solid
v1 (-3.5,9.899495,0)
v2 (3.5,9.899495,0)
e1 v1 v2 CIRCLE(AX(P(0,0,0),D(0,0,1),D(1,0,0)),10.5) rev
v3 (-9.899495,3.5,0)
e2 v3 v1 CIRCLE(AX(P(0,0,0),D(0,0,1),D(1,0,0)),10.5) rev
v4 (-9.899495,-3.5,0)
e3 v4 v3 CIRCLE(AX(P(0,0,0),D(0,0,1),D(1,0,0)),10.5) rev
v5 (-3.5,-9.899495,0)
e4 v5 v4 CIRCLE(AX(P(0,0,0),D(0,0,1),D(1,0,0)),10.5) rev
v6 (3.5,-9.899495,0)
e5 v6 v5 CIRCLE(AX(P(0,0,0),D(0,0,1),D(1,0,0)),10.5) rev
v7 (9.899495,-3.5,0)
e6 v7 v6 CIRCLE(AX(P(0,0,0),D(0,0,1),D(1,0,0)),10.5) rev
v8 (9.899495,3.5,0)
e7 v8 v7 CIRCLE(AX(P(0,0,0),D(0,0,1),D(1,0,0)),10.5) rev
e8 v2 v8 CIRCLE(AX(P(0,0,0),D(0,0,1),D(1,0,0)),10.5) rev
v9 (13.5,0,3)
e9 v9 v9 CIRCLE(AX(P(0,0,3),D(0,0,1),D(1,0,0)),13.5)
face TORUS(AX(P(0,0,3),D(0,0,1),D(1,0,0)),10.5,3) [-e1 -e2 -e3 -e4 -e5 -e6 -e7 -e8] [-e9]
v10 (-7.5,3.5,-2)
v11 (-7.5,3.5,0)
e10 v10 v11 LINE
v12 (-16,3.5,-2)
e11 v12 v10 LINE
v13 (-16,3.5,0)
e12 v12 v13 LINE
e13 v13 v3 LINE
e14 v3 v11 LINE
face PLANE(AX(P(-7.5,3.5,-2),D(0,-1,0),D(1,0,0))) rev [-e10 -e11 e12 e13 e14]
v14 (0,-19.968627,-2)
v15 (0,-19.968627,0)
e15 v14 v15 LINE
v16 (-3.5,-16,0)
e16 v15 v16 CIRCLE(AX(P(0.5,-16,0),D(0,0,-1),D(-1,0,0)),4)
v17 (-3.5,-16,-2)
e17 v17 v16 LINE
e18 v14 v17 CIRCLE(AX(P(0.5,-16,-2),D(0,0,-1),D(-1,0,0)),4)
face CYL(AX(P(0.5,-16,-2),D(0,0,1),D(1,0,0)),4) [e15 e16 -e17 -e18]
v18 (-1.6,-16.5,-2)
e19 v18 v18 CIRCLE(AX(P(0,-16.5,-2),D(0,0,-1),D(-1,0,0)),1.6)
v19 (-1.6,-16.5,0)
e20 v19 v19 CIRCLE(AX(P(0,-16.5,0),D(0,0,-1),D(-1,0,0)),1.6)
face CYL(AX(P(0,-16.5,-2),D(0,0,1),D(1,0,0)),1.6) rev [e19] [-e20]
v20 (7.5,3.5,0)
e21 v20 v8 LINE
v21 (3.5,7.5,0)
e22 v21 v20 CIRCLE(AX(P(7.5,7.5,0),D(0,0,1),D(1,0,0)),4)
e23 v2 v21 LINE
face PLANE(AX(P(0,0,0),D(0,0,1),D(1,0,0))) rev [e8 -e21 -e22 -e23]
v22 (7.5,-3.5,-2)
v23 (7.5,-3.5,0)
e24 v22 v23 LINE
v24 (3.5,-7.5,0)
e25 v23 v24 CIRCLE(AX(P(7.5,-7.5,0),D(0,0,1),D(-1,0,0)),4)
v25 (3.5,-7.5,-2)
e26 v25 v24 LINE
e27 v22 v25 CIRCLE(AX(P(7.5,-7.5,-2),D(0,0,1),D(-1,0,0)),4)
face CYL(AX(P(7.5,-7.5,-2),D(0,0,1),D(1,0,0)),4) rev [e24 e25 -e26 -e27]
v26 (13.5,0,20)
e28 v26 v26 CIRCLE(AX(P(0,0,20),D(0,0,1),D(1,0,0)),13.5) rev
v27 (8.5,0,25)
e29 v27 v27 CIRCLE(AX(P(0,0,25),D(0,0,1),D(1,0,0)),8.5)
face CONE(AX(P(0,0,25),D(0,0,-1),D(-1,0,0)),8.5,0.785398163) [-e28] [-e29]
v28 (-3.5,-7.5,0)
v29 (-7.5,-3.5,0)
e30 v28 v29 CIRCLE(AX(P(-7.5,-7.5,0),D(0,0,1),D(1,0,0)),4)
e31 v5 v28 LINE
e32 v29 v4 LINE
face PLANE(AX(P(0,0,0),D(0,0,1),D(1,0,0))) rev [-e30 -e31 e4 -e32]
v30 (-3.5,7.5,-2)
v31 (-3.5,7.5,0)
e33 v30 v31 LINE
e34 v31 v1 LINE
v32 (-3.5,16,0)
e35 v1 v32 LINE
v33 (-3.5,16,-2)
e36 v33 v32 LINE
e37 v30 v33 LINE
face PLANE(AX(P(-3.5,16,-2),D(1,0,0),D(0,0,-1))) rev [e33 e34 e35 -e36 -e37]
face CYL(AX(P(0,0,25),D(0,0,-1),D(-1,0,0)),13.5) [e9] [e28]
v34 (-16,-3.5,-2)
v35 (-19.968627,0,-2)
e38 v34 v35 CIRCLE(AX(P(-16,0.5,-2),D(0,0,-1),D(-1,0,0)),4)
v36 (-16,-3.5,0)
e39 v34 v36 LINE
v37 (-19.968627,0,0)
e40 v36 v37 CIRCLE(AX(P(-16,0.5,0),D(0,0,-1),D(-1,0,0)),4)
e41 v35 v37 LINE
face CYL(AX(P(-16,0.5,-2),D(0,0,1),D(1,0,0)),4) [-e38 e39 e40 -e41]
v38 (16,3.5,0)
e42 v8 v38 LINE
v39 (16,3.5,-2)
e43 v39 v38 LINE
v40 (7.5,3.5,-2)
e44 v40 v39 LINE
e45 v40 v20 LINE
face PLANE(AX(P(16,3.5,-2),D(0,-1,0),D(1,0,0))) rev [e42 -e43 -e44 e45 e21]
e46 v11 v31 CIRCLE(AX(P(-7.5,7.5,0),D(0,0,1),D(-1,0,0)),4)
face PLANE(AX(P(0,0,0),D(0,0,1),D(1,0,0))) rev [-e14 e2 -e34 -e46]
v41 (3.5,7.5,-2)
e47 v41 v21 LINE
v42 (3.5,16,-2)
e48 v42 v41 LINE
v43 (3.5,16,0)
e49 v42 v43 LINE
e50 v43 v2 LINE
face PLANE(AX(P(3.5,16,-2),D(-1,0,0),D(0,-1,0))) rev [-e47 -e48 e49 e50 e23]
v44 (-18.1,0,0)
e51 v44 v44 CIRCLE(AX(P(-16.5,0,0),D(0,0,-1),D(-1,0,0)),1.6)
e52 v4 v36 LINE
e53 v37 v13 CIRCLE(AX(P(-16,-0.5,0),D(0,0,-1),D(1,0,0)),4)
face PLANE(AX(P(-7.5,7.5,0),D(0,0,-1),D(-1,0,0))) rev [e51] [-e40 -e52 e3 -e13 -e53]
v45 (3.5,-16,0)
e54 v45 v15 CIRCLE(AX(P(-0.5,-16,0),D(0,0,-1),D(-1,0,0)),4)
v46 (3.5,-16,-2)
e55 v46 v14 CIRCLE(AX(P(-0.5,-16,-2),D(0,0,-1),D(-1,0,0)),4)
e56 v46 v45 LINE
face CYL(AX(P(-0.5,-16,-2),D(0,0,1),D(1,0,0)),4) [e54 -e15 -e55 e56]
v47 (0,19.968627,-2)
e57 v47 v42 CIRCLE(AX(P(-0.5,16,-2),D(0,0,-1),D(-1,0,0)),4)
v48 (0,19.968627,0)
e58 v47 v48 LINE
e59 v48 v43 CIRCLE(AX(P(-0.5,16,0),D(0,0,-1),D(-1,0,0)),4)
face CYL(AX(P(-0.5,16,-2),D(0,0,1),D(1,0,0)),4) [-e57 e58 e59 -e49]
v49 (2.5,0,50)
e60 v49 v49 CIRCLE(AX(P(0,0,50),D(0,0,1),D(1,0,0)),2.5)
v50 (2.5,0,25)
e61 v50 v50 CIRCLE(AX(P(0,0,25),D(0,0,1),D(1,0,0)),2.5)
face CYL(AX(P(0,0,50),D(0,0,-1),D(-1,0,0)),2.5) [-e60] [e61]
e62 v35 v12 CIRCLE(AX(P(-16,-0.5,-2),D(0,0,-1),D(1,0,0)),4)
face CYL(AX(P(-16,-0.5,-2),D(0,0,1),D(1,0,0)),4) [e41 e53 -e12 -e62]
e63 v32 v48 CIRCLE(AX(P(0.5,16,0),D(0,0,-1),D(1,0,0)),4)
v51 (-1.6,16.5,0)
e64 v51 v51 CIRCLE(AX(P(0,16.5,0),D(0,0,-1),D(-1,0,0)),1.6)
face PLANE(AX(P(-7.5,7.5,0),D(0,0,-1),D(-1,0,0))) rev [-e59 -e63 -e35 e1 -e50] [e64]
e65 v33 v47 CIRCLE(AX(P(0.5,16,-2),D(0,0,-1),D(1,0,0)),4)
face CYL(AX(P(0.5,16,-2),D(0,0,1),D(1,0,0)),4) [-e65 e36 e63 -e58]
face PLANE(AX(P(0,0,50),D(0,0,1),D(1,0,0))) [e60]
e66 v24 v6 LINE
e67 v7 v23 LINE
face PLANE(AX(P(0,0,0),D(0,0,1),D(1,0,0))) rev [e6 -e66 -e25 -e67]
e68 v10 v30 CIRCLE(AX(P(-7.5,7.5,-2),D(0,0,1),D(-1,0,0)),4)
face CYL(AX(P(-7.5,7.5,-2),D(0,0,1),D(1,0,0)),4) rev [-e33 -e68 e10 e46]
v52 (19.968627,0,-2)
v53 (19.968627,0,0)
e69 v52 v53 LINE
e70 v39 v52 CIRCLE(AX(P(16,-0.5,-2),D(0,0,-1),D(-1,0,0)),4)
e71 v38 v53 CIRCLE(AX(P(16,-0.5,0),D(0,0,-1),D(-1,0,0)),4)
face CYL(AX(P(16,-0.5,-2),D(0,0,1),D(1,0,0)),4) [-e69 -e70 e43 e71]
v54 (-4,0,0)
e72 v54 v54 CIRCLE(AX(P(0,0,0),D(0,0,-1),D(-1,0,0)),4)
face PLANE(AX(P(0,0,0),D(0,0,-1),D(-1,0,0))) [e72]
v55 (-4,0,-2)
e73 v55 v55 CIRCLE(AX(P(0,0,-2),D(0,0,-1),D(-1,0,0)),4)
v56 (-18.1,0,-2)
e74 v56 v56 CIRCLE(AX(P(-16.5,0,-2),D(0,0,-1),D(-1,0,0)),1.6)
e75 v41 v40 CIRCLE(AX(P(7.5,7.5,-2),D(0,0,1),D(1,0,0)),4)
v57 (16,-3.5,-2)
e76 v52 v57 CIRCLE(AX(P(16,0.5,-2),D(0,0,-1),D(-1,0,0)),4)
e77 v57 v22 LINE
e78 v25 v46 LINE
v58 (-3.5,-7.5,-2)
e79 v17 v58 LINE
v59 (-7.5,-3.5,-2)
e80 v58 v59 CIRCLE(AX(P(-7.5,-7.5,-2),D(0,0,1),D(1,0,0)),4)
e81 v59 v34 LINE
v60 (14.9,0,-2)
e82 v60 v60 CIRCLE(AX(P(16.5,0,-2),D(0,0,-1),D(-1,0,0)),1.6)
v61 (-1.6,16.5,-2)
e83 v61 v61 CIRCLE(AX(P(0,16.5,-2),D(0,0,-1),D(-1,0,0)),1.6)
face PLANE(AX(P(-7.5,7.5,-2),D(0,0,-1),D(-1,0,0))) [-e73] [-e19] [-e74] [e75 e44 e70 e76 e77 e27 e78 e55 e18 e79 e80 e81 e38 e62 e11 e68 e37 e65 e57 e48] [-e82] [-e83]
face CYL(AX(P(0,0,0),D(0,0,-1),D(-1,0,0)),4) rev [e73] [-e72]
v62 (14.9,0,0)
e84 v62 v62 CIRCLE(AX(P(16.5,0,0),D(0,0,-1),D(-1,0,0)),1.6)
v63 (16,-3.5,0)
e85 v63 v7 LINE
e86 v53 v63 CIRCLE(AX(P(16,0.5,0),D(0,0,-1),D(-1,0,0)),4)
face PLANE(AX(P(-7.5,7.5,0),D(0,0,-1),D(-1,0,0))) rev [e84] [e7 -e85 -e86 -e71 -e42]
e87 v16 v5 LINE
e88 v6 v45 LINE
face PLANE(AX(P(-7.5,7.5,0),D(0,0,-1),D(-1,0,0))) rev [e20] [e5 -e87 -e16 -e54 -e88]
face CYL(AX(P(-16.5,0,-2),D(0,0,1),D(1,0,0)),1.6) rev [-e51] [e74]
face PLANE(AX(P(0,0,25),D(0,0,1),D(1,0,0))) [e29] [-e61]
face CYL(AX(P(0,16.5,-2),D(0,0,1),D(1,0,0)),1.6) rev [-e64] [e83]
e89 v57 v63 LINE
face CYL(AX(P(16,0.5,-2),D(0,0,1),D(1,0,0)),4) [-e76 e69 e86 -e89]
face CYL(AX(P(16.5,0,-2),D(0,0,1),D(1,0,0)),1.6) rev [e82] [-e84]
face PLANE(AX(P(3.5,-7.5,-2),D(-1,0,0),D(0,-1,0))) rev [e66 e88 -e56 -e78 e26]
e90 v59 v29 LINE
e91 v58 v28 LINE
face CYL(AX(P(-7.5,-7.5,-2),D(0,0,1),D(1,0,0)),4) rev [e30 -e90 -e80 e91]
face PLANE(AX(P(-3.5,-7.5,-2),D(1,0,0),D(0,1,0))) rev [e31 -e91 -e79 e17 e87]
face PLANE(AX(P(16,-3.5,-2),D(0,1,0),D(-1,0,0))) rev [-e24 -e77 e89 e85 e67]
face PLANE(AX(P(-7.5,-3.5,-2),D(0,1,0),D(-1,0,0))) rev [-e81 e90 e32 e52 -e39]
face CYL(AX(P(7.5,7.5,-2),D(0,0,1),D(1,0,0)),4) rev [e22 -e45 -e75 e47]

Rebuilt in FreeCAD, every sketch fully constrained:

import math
import FreeCAD as App
import Part
import Sketcher

V = App.Vector
Q = App.Units.Quantity


def edges_at(feature, points):
    """Names of the edges that pass closest to the given points."""
    edges = feature.Shape.Edges
    near = lambda p: min(range(len(edges)), key=lambda i: edges[i].distToShape(Part.Vertex(*p))[0])
    return sorted({f"Edge{near(p) + 1}" for p in points})

doc = App.newDocument("Part")
body = doc.addObject("PartDesign::Body", "Body")

# Sketch on XY plane
sketch1 = body.newObject("Sketcher::SketchObject", "Sketch")
sketch1.AttachmentSupport = (doc.getObject("XY_Plane"), [""])
sketch1.MapMode = "FlatFace"
sketch1.addGeometry(Part.Circle(V(0, 0, 0), V(0, 0, 1), 13.5), False)
sketch1.addConstraint(Sketcher.Constraint("Coincident", 0, 3, -1, 1))
sketch1.addConstraint(Sketcher.Constraint("Diameter", 0, Q("27 mm")))
pad1 = body.newObject("PartDesign::Pad", "Pad")
pad1.Profile = sketch1
pad1.Length = 25

# Sketch on XY plane
sketch2 = body.newObject("Sketcher::SketchObject", "Sketch001")
sketch2.AttachmentSupport = (doc.getObject("XY_Plane"), [""])
sketch2.MapMode = "FlatFace"
sketch2.AttachmentOffset = App.Placement(V(0, 0, 25), App.Rotation())
sketch2.addGeometry(Part.Circle(V(0, 0, 0), V(0, 0, 1), 2.5), False)
sketch2.addConstraint(Sketcher.Constraint("Coincident", 0, 3, -1, 1))
sketch2.addConstraint(Sketcher.Constraint("Diameter", 0, Q("5 mm")))
pad2 = body.newObject("PartDesign::Pad", "Pad001")
pad2.Profile = sketch2
pad2.Length = 25
doc.recompute()

fillet = body.newObject("PartDesign::Fillet", "Fillet")
fillet.Base = (pad2, edges_at(pad2, [(-13.5, 0, 0)]))
fillet.Radius = 3
doc.recompute()

chamfer = body.newObject("PartDesign::Chamfer", "Chamfer")
chamfer.Base = (fillet, edges_at(fillet, [(-13.5, 0, 25)]))
chamfer.Size = 5

# Sketch on XY plane
sketch3 = body.newObject("Sketcher::SketchObject", "Sketch002")
sketch3.AttachmentSupport = (doc.getObject("XY_Plane"), [""])
sketch3.MapMode = "FlatFace"
sketch3.addGeometry(Part.LineSegment(V(3.5, -7.5, 0), V(3.5, -16, 0)), False)
sketch3.addGeometry(Part.ArcOfCircle(Part.Circle(V(-0.5, -16, 0), V(0, 0, 1), 4), math.radians(-82.819244), math.radians(0)), False)
sketch3.addGeometry(Part.ArcOfCircle(Part.Circle(V(0.5, -16, 0), V(0, 0, 1), 4), math.radians(180), math.radians(262.819244)), False)
sketch3.addGeometry(Part.LineSegment(V(-3.5, -16, 0), V(-3.5, -7.5, 0)), False)
sketch3.addGeometry(Part.ArcOfCircle(Part.Circle(V(-7.5, -7.5, 0), V(0, 0, 1), 4), math.radians(0), math.radians(90)), False)
sketch3.addGeometry(Part.LineSegment(V(-7.5, -3.5, 0), V(-16, -3.5, 0)), False)
sketch3.addGeometry(Part.ArcOfCircle(Part.Circle(V(-16, 0.5, 0), V(0, 0, 1), 4), math.radians(-172.819244), math.radians(-90)), False)
sketch3.addGeometry(Part.ArcOfCircle(Part.Circle(V(-16, -0.5, 0), V(0, 0, 1), 4), math.radians(90), math.radians(172.819244)), False)
sketch3.addGeometry(Part.LineSegment(V(-16, 3.5, 0), V(-7.5, 3.5, 0)), False)
sketch3.addGeometry(Part.ArcOfCircle(Part.Circle(V(-7.5, 7.5, 0), V(0, 0, 1), 4), math.radians(-90), math.radians(0)), False)
sketch3.addGeometry(Part.LineSegment(V(-3.5, 7.5, 0), V(-3.5, 16, 0)), False)
sketch3.addGeometry(Part.ArcOfCircle(Part.Circle(V(0.5, 16, 0), V(0, 0, 1), 4), math.radians(97.180756), math.radians(180)), False)
sketch3.addGeometry(Part.ArcOfCircle(Part.Circle(V(-0.5, 16, 0), V(0, 0, 1), 4), math.radians(0), math.radians(82.819244)), False)
sketch3.addGeometry(Part.LineSegment(V(3.5, 16, 0), V(3.5, 7.5, 0)), False)
sketch3.addGeometry(Part.ArcOfCircle(Part.Circle(V(7.5, 7.5, 0), V(0, 0, 1), 4), math.radians(180), math.radians(270)), False)
sketch3.addGeometry(Part.LineSegment(V(7.5, 3.5, 0), V(16, 3.5, 0)), False)
sketch3.addGeometry(Part.ArcOfCircle(Part.Circle(V(16, -0.5, 0), V(0, 0, 1), 4), math.radians(7.180756), math.radians(90)), False)
sketch3.addGeometry(Part.ArcOfCircle(Part.Circle(V(16, 0.5, 0), V(0, 0, 1), 4), math.radians(-90), math.radians(-7.180756)), False)
sketch3.addGeometry(Part.LineSegment(V(16, -3.5, 0), V(7.5, -3.5, 0)), False)
sketch3.addGeometry(Part.ArcOfCircle(Part.Circle(V(7.5, -7.5, 0), V(0, 0, 1), 4), math.radians(90), math.radians(180)), False)
sketch3.addGeometry(Part.Circle(V(0, -16.5, 0), V(0, 0, 1), 1.6), False)
sketch3.addGeometry(Part.Circle(V(16.5, 0, 0), V(0, 0, 1), 1.6), False)
sketch3.addGeometry(Part.Circle(V(-16.5, 0, 0), V(0, 0, 1), 1.6), False)
sketch3.addGeometry(Part.Circle(V(0, 16.5, 0), V(0, 0, 1), 1.6), False)
sketch3.addConstraint(Sketcher.Constraint("Tangent", 0, 2, 1, 2))
sketch3.addConstraint(Sketcher.Constraint("Coincident", 1, 1, 2, 2))
sketch3.addConstraint(Sketcher.Constraint("Tangent", 2, 1, 3, 1))
sketch3.addConstraint(Sketcher.Constraint("Tangent", 3, 2, 4, 1))
sketch3.addConstraint(Sketcher.Constraint("Tangent", 4, 2, 5, 1))
sketch3.addConstraint(Sketcher.Constraint("Tangent", 5, 2, 6, 2))
sketch3.addConstraint(Sketcher.Constraint("Coincident", 6, 1, 7, 2))
sketch3.addConstraint(Sketcher.Constraint("Tangent", 7, 1, 8, 1))
sketch3.addConstraint(Sketcher.Constraint("Tangent", 8, 2, 9, 1))
sketch3.addConstraint(Sketcher.Constraint("Tangent", 9, 2, 10, 1))
sketch3.addConstraint(Sketcher.Constraint("Tangent", 10, 2, 11, 2))
sketch3.addConstraint(Sketcher.Constraint("Coincident", 11, 1, 12, 2))
sketch3.addConstraint(Sketcher.Constraint("Tangent", 12, 1, 13, 1))
sketch3.addConstraint(Sketcher.Constraint("Tangent", 13, 2, 14, 1))
sketch3.addConstraint(Sketcher.Constraint("Tangent", 14, 2, 15, 1))
sketch3.addConstraint(Sketcher.Constraint("Tangent", 15, 2, 16, 2))
sketch3.addConstraint(Sketcher.Constraint("Coincident", 16, 1, 17, 2))
sketch3.addConstraint(Sketcher.Constraint("Tangent", 17, 1, 18, 1))
sketch3.addConstraint(Sketcher.Constraint("Tangent", 18, 2, 19, 1))
sketch3.addConstraint(Sketcher.Constraint("Tangent", 19, 2, 0, 1))
sketch3.addConstraint(Sketcher.Constraint("Vertical", 0))
sketch3.addConstraint(Sketcher.Constraint("Vertical", 3))
sketch3.addConstraint(Sketcher.Constraint("Horizontal", 5))
sketch3.addConstraint(Sketcher.Constraint("Horizontal", 8))
sketch3.addConstraint(Sketcher.Constraint("Vertical", 10))
sketch3.addConstraint(Sketcher.Constraint("Vertical", 13))
sketch3.addConstraint(Sketcher.Constraint("Horizontal", 15))
sketch3.addConstraint(Sketcher.Constraint("Horizontal", 18))
sketch3.addConstraint(Sketcher.Constraint("Equal", 1, 2))
sketch3.addConstraint(Sketcher.Constraint("Equal", 2, 4))
sketch3.addConstraint(Sketcher.Constraint("Equal", 4, 6))
sketch3.addConstraint(Sketcher.Constraint("Equal", 6, 7))
sketch3.addConstraint(Sketcher.Constraint("Equal", 7, 9))
sketch3.addConstraint(Sketcher.Constraint("Equal", 9, 11))
sketch3.addConstraint(Sketcher.Constraint("Equal", 11, 12))
sketch3.addConstraint(Sketcher.Constraint("Equal", 12, 14))
sketch3.addConstraint(Sketcher.Constraint("Equal", 14, 16))
sketch3.addConstraint(Sketcher.Constraint("Equal", 16, 17))
sketch3.addConstraint(Sketcher.Constraint("Equal", 17, 19))
sketch3.addConstraint(Sketcher.Constraint("Equal", 20, 21))
sketch3.addConstraint(Sketcher.Constraint("Equal", 21, 22))
sketch3.addConstraint(Sketcher.Constraint("Equal", 22, 23))
sketch3.addConstraint(Sketcher.Constraint("Symmetric", 1, 3, 11, 3, -1, 1))
sketch3.addConstraint(Sketcher.Constraint("Symmetric", 2, 3, 12, 3, -1, 1))
sketch3.addConstraint(Sketcher.Constraint("Symmetric", 6, 3, 16, 3, -1, 1))
sketch3.addConstraint(Sketcher.Constraint("Symmetric", 7, 3, 17, 3, -1, 1))
sketch3.addConstraint(Sketcher.Constraint("Symmetric", 21, 3, 22, 3, -1, 1))
sketch3.addConstraint(Sketcher.Constraint("Symmetric", 20, 3, 23, 3, -1, 1))
sketch3.addConstraint(Sketcher.Constraint("Symmetric", 1, 3, 2, 3, -2))
sketch3.addConstraint(Sketcher.Constraint("Symmetric", 7, 3, 16, 3, -2))
sketch3.addConstraint(Sketcher.Constraint("PointOnObject", 20, 3, -2))
sketch3.addConstraint(Sketcher.Constraint("PointOnObject", 21, 3, -1))
sketch3.addConstraint(Sketcher.Constraint("Equal", 18, 0))
sketch3.addConstraint(Sketcher.Constraint("Radius", 1, Q("4 mm")))
sketch3.addConstraint(Sketcher.Constraint("Diameter", 20, Q("3.2 mm")))
sketch3.addConstraint(Sketcher.Constraint("DistanceX", 5, 2, 5, 1, Q("8.5 mm")))
sketch3.addConstraint(Sketcher.Constraint("DistanceY", 1, 3, -1, 1, Q("16 mm")))
sketch3.addConstraint(Sketcher.Constraint("DistanceX", 6, 3, -1, 1, Q("16 mm")))
sketch3.addConstraint(Sketcher.Constraint("DistanceY", 20, 3, 4, 3, Q("9 mm")))
sketch3.addConstraint(Sketcher.Constraint("DistanceX", 14, 3, 21, 3, Q("9 mm")))
pad3 = body.newObject("PartDesign::Pad", "Pad002")
pad3.Profile = sketch3
pad3.Length = 2
pad3.Reversed = True

# Sketch on XY plane
sketch4 = body.newObject("Sketcher::SketchObject", "Sketch003")
sketch4.AttachmentSupport = (doc.getObject("XY_Plane"), [""])
sketch4.MapMode = "FlatFace"
sketch4.AttachmentOffset = App.Placement(V(0, 0, -2), App.Rotation())
sketch4.addGeometry(Part.Circle(V(0, 0, 0), V(0, 0, 1), 4), False)
sketch4.addConstraint(Sketcher.Constraint("Coincident", 0, 3, -1, 1))
sketch4.addConstraint(Sketcher.Constraint("Diameter", 0, Q("8 mm")))
pocket1 = body.newObject("PartDesign::Pocket", "Pocket")
pocket1.Profile = sketch4
pocket1.Length = 2
pocket1.Reversed = True

doc.recompute()
